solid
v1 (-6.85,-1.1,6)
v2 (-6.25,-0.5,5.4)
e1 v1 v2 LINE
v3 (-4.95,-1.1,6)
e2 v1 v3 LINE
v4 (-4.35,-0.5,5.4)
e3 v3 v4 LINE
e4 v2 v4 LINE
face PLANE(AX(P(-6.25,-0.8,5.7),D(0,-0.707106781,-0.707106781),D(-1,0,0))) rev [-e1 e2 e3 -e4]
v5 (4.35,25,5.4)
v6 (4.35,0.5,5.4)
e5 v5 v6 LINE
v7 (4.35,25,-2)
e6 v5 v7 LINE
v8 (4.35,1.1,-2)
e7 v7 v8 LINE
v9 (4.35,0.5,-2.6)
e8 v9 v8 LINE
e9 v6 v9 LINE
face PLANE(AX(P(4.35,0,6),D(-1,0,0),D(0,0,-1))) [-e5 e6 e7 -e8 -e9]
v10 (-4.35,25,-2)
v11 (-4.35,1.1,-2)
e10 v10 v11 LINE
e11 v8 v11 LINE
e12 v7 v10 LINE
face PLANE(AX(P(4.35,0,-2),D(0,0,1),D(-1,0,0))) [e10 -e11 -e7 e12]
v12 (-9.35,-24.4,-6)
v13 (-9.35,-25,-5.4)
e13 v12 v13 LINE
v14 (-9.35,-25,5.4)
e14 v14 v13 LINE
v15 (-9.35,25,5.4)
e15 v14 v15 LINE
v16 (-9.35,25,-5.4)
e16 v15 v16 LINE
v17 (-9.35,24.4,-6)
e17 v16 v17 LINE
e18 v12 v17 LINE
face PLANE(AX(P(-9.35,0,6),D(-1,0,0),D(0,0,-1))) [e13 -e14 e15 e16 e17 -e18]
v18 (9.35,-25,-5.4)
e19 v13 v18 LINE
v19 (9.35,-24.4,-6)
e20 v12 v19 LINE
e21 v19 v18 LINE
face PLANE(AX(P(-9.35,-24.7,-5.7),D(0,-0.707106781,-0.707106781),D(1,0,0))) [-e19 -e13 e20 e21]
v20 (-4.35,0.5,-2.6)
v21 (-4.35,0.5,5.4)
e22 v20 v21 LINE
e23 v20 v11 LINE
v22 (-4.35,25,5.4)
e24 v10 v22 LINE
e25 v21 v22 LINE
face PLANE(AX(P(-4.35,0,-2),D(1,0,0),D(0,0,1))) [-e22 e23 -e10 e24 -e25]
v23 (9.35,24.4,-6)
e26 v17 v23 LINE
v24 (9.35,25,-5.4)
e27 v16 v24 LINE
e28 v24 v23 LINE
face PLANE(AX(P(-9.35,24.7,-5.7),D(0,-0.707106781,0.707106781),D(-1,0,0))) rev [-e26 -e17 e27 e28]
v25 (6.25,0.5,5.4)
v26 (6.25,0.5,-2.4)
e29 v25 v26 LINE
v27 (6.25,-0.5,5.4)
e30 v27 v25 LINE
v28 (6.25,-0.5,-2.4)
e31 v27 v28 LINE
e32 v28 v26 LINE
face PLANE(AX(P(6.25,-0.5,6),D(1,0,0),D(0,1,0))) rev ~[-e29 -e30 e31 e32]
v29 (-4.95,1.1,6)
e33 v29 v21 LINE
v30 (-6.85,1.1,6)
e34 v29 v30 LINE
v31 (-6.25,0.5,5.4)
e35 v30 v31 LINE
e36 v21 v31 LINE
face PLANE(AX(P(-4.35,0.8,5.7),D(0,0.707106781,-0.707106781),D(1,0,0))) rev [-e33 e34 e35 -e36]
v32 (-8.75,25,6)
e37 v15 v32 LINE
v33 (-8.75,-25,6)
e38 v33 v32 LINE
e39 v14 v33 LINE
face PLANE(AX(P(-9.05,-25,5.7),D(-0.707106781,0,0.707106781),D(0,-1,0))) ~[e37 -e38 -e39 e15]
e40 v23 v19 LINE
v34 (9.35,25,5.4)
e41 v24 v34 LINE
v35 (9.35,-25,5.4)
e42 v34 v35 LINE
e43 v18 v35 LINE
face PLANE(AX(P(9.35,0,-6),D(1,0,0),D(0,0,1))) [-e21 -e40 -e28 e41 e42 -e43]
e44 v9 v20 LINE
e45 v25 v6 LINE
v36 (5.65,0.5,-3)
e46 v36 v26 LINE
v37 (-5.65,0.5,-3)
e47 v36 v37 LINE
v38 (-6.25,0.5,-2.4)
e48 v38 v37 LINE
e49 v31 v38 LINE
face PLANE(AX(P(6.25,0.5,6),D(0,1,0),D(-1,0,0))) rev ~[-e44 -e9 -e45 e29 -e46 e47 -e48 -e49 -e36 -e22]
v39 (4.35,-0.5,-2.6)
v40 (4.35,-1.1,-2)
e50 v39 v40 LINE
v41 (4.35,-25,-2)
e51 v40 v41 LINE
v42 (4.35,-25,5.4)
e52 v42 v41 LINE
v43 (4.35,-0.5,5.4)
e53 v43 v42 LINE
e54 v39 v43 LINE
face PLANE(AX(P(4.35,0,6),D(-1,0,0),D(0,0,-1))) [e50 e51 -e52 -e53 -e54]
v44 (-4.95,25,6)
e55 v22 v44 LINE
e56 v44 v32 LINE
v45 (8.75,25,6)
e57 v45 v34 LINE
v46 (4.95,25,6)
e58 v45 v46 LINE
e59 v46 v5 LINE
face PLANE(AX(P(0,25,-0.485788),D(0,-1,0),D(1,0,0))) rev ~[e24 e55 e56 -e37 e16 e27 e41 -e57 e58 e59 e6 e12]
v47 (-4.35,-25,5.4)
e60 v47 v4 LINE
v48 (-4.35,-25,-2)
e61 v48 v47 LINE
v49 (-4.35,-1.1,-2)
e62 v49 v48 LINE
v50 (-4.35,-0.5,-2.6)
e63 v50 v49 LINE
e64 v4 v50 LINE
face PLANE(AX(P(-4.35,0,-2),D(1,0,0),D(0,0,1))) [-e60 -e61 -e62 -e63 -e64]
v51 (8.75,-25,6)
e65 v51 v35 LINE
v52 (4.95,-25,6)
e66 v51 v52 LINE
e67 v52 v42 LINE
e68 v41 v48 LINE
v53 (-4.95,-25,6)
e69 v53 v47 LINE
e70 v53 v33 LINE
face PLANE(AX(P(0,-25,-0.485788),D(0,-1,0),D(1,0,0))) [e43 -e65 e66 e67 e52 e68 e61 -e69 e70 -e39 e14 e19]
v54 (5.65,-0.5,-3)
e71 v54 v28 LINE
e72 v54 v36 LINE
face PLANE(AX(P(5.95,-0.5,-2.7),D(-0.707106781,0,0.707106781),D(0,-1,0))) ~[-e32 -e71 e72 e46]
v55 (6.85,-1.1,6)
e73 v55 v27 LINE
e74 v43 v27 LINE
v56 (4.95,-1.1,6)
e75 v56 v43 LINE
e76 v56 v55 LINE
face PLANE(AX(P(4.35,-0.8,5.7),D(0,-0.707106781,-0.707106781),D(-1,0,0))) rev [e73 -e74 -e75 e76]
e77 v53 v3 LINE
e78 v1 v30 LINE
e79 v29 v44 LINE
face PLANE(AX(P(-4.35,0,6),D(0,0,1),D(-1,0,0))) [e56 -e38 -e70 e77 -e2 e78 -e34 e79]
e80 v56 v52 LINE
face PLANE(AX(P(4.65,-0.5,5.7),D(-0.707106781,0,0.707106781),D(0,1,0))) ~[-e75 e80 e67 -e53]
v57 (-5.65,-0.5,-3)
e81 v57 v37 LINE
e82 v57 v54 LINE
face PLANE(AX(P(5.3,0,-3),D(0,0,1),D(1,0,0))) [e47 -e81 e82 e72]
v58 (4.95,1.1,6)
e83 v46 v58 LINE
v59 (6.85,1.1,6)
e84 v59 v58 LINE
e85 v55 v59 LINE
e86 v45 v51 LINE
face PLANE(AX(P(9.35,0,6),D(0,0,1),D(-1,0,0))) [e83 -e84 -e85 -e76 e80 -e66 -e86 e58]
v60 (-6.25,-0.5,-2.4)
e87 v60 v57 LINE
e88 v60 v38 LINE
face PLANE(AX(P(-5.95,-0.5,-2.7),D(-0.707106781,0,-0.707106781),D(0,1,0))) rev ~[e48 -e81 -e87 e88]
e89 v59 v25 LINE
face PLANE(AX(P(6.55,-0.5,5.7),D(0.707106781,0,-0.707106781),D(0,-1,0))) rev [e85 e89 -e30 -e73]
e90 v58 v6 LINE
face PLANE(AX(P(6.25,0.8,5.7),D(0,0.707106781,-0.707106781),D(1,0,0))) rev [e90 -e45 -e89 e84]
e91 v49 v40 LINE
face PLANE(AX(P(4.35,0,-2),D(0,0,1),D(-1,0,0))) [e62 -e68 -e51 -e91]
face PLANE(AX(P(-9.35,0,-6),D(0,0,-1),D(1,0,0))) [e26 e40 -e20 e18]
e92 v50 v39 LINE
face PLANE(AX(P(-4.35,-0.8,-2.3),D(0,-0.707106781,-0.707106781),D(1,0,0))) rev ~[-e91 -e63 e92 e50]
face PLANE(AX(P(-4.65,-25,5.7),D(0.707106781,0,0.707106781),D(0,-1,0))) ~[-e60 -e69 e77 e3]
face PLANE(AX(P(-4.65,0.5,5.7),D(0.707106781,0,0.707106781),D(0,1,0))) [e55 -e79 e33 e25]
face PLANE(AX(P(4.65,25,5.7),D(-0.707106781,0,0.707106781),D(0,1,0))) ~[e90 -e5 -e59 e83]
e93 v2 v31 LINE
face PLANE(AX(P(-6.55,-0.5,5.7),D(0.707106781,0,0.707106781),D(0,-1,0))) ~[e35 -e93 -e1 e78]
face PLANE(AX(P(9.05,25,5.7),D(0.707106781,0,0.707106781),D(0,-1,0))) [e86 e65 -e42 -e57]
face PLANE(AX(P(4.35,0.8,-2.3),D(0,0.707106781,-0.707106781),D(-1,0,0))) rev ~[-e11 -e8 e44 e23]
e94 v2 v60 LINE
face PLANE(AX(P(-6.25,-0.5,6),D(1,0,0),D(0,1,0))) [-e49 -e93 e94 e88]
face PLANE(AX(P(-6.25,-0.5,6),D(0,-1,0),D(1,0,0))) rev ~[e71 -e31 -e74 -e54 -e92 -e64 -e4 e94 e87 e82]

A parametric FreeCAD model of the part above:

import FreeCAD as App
import Part
import Sketcher


def edges_at(feature, points):
    """Names of the edges that pass closest to the given points."""
    edges = feature.Shape.Edges
    near = lambda p: min(range(len(edges)), key=lambda i: edges[i].distToShape(Part.Vertex(*p))[0])
    return sorted({f"Edge{near(p) + 1}" for p in points})


def add_polygon(sketch, points):
    """Adds a closed chain of lines whose ends are joined by coincident constraints."""
    first, n = sketch.GeometryCount, len(points)
    for a, b in zip(points, points[1:] + points[:1]):
        sketch.addGeometry(Part.LineSegment(App.Vector(*a, 0), App.Vector(*b, 0)), False)
    for i in range(n):
        sketch.addConstraint(Sketcher.Constraint("Coincident", first + i, 2, first + (i + 1) % n, 1))

doc = App.newDocument("Part")
body = doc.addObject("PartDesign::Body", "Body")

sketch1 = doc.addObject("Sketcher::SketchObject", "Sketch")
body.addObject(sketch1)
sketch1.AttachmentSupport = (doc.XZ_Plane, [""])
sketch1.MapMode = "FlatFace"
add_polygon(sketch1, [(-9, -6), (9, -6), (9, 6), (4, 6), (4, -2), (-4, -2), (-4, 6), (-9, 6)])
sketch1.addConstraint(Sketcher.Constraint("Horizontal", 0))
sketch1.addConstraint(Sketcher.Constraint("Vertical", 1))
sketch1.addConstraint(Sketcher.Constraint("Horizontal", 2))
sketch1.addConstraint(Sketcher.Constraint("Vertical", 3))
sketch1.addConstraint(Sketcher.Constraint("Horizontal", 4))
sketch1.addConstraint(Sketcher.Constraint("Vertical", 5))
sketch1.addConstraint(Sketcher.Constraint("Horizontal", 6))
sketch1.addConstraint(Sketcher.Constraint("Vertical", 7))
sketch1.addConstraint(Sketcher.Constraint("Symmetric", 0, 2, 6, 2, -1, 1))
sketch1.addConstraint(Sketcher.Constraint("Symmetric", 2, 2, 5, 2, -2))
sketch1.addConstraint(Sketcher.Constraint("DistanceX", 2, 2, 2, 1, 5.0))
sketch1.addConstraint(Sketcher.Constraint("DistanceY", 1, 1, 1, 2, 12.0))
sketch1.addConstraint(Sketcher.Constraint("DistanceY", 3, 2, 3, 1, 8.0))
sketch1.addConstraint(Sketcher.Constraint("DistanceX", 0, 1, 0, 2, 18.7))
pad1 = doc.addObject("PartDesign::Pad", "Pad")
body.addObject(pad1)
pad1.Profile = sketch1
pad1.Length = 50
pad1.Midplane = True

sketch2 = doc.addObject("Sketcher::SketchObject", "Sketch001")
body.addObject(sketch2)
sketch2.AttachmentSupport = (doc.XY_Plane, [""])
sketch2.MapMode = "FlatFace"
sketch2.AttachmentOffset = App.Placement(App.Vector(0, 0, 6), App.Rotation())
add_polygon(sketch2, [(6.2, -0.5), (6.2, 0.5), (-6.2, 0.5), (-6.2, -0.5)])
sketch2.addConstraint(Sketcher.Constraint("Vertical", 0))
sketch2.addConstraint(Sketcher.Constraint("Horizontal", 1))
sketch2.addConstraint(Sketcher.Constraint("Vertical", 2))
sketch2.addConstraint(Sketcher.Constraint("Horizontal", 3))
sketch2.addConstraint(Sketcher.Constraint("Symmetric", 0, 2, 2, 2, -1, 1))
sketch2.addConstraint(Sketcher.Constraint("DistanceY", 0, 1, 0, 2, 1.0))
sketch2.addConstraint(Sketcher.Constraint("DistanceX", 1, 2, 1, 1, 12.5))
pocket1 = doc.addObject("PartDesign::Pocket", "Pocket")
body.addObject(pocket1)
pocket1.Profile = sketch2
pocket1.Length = 9
doc.recompute()

chamfer = doc.addObject("PartDesign::Chamfer", "Chamfer")
body.addObject(chamfer)
chamfer.Base = (pocket1, edges_at(pocket1, [
    (5.3, 0.5, 6),
    (6.25, 0, 6),
    (5.3, -0.5, 6),
    (4.35, 12.75, 6),
    (4.35, -12.75, 6),
]))
chamfer.Size = 0.6
doc.recompute()

chamfer2 = doc.addObject("PartDesign::Chamfer", "Chamfer001")
body.addObject(chamfer2)
chamfer2.Base = (chamfer, edges_at(chamfer, [
    (-5.3, 0.5, 6),
    (-6.25, 0, 6),
    (-5.3, -0.5, 6),
    (-4.35, -12.75, 6),
    (-4.35, 12.75, 6),
]))
chamfer2.Size = 0.6
doc.recompute()

chamfer3 = doc.addObject("PartDesign::Chamfer", "Chamfer002")
body.addObject(chamfer3)
chamfer3.Base = (chamfer2, edges_at(chamfer2, [(9.35, 0, 6)]))
chamfer3.Size = 0.6
doc.recompute()

chamfer4 = doc.addObject("PartDesign::Chamfer", "Chamfer003")
body.addObject(chamfer4)
chamfer4.Base = (chamfer3, edges_at(chamfer3, [(-9.35, 0, 6)]))
chamfer4.Size = 0.6
doc.recompute()

chamfer5 = doc.addObject("PartDesign::Chamfer", "Chamfer004")
body.addObject(chamfer5)
chamfer5.Base = (chamfer4, edges_at(chamfer4, [(0, 25, -6)]))
chamfer5.Size = 0.6
doc.recompute()

chamfer6 = doc.addObject("PartDesign::Chamfer", "Chamfer005")
body.addObject(chamfer6)
chamfer6.Base = (chamfer5, edges_at(chamfer5, [(0, -25, -6)]))
chamfer6.Size = 0.6
doc.recompute()

chamfer7 = doc.addObject("PartDesign::Chamfer", "Chamfer006")
body.addObject(chamfer7)
chamfer7.Base = (chamfer6, edges_at(chamfer6, [(-6.25, 0, -3)]))
chamfer7.Size = 0.6
doc.recompute()

chamfer8 = doc.addObject("PartDesign::Chamfer", "Chamfer007")
body.addObject(chamfer8)
chamfer8.Base = (chamfer7, edges_at(chamfer7, [(6.25, 0, -3)]))
chamfer8.Size = 0.6
doc.recompute()

chamfer9 = doc.addObject("PartDesign::Chamfer", "Chamfer008")
body.addObject(chamfer9)
chamfer9.Base = (chamfer8, edges_at(chamfer8, [(0, 0.5, -2)]))
chamfer9.Size = 0.6
doc.recompute()

chamfer10 = doc.addObject("PartDesign::Chamfer", "Chamfer009")
body.addObject(chamfer10)
chamfer10.Base = (chamfer9, edges_at(chamfer9, [(0, -0.5, -2)]))
chamfer10.Size = 0.6

doc.recompute()
